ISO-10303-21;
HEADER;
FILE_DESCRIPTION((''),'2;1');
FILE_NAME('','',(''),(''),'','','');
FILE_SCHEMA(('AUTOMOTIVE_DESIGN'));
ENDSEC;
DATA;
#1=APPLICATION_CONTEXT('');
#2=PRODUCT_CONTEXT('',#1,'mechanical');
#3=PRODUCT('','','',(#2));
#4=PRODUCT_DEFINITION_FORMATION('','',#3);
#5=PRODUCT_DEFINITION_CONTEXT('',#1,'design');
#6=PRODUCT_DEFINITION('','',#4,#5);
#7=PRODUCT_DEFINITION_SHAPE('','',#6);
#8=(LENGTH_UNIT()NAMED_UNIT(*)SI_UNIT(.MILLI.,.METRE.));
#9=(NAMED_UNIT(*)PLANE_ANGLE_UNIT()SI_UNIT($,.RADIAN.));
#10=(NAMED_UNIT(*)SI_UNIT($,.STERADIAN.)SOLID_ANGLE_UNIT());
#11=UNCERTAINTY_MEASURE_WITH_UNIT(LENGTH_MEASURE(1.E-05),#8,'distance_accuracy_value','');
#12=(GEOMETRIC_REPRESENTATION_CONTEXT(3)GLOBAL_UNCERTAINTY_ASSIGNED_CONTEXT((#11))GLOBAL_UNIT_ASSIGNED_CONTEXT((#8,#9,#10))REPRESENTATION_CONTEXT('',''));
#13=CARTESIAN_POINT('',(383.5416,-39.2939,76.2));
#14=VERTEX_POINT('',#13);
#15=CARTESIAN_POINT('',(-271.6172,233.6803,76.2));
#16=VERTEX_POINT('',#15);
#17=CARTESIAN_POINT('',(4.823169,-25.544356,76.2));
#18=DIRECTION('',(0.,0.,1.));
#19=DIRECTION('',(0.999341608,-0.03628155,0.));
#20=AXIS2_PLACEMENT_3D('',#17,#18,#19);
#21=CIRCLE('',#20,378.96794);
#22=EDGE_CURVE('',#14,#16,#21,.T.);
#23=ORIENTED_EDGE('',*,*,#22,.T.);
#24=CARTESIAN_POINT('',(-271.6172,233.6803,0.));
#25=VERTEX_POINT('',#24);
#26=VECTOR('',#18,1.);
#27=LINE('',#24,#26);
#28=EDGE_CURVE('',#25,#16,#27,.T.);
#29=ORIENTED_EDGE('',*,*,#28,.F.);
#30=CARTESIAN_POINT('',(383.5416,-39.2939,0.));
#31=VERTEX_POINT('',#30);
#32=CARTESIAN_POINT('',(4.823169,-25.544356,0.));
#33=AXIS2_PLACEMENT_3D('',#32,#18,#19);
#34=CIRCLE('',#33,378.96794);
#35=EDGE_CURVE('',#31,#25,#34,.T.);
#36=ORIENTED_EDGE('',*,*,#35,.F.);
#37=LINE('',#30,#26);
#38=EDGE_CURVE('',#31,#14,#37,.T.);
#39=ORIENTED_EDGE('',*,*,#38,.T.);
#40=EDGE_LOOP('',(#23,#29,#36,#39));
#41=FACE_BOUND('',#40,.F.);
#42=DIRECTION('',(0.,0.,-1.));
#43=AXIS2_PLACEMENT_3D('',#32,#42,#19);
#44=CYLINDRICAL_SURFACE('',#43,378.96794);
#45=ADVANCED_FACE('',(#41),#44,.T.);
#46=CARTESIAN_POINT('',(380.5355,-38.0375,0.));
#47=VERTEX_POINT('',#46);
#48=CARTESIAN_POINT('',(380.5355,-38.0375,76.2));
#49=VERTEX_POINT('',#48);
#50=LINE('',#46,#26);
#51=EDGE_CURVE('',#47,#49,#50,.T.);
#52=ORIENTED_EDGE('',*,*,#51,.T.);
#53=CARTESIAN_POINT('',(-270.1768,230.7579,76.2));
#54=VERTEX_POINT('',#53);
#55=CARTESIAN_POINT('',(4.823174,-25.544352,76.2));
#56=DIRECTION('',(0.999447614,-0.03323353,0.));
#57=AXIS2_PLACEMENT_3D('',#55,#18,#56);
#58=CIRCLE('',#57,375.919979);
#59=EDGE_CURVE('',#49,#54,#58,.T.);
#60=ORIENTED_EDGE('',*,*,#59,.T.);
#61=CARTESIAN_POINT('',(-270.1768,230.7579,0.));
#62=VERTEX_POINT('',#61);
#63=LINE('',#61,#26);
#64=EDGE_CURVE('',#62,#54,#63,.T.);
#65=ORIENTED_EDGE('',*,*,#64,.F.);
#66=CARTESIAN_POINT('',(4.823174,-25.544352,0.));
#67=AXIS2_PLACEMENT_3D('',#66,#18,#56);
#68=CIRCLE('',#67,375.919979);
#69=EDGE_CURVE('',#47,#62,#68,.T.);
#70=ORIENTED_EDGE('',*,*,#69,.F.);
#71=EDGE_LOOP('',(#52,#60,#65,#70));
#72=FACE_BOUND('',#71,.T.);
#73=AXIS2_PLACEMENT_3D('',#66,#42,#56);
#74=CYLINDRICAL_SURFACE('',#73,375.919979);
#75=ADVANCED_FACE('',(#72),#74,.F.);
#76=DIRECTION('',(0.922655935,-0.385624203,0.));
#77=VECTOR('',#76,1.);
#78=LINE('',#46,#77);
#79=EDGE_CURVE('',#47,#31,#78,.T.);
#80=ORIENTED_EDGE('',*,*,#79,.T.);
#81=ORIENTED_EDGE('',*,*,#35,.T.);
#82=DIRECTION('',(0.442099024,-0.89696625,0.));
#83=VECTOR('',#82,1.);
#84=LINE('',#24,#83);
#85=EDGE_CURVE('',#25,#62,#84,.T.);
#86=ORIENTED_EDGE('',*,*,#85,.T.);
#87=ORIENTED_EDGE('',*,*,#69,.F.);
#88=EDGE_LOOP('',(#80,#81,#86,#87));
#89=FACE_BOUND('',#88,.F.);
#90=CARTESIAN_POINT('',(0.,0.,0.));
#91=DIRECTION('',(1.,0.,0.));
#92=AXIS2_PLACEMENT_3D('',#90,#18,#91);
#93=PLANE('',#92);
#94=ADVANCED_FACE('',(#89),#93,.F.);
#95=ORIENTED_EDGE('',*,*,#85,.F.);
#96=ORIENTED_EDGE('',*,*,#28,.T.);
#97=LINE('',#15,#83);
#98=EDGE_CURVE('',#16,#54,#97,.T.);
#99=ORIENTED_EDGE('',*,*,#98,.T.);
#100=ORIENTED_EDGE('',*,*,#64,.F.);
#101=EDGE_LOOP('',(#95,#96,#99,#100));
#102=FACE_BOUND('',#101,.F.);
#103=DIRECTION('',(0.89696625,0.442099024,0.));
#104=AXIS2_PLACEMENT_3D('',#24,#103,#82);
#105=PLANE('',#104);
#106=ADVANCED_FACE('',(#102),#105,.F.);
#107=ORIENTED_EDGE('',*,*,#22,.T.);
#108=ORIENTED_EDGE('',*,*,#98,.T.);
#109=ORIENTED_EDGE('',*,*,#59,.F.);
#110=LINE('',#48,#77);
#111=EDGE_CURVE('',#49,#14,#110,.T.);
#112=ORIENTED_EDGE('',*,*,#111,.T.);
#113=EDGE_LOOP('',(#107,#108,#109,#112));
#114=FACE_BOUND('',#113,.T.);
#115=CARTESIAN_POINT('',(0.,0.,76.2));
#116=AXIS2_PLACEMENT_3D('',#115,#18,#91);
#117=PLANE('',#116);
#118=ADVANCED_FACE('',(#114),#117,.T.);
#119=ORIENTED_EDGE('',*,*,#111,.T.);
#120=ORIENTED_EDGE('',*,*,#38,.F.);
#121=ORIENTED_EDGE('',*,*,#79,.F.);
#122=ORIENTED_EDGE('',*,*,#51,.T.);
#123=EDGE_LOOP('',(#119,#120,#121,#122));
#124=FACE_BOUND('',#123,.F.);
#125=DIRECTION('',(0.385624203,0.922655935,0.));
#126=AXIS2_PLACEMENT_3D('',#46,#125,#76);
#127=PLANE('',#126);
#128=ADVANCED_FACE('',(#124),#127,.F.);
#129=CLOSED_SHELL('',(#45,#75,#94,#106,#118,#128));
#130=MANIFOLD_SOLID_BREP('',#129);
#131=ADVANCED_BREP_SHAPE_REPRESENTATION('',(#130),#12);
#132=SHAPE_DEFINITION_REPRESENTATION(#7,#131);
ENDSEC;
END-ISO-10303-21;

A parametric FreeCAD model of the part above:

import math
import FreeCAD as App
import Part
import Sketcher

V = App.Vector
Q = App.Units.Quantity

doc = App.newDocument("Part")
body = doc.addObject("PartDesign::Body", "Body")

# Sketch on XY plane
sketch1 = body.newObject("Sketcher::SketchObject", "Sketch")
sketch1.AttachmentSupport = (doc.getObject("XY_Plane"), [""])
sketch1.MapMode = "FlatFace"
sketch1.addGeometry([
    Part.ArcOfCircle(Part.Circle(V(4.8, -25.5, 0), V(0, 0, 1), 375.9), math.radians(-2), math.radians(137)),
    Part.LineSegment(V(380.5, -38, 0), V(383.5, -39.3, 0)),
    Part.ArcOfCircle(Part.Circle(V(4.8, -25.5, 0), V(0, 0, 1), 379), math.radians(-2), math.radians(137)),
    Part.LineSegment(V(-271.6, 233.7, 0), V(-270.2, 230.8, 0)),
], False)
sketch1.addConstraint([
    Sketcher.Constraint("Coincident", 0, 1, 1, 1),
    Sketcher.Constraint("Coincident", 1, 2, 2, 1),
    Sketcher.Constraint("Coincident", 2, 2, 3, 1),
    Sketcher.Constraint("Coincident", 3, 2, 0, 2),
    Sketcher.Constraint("Coincident", 2, 3, 0, 3),
    Sketcher.Constraint("Equal", 1, 3),
    Sketcher.Constraint("Radius", 0, Q("14.8 in")),
    Sketcher.Constraint("Radius", 2, Q("14.92 in")),
    Sketcher.Constraint("DistanceY", 1, 2, -1, 1, Q("1.547 in")),
    Sketcher.Constraint("DistanceX", 2, 2, -1, 1, Q("10.6936 in")),
    Sketcher.Constraint("DistanceX", 3, 2, 0, 1, Q("25.6186 in")),
    Sketcher.Constraint("DistanceY", 0, 1, 3, 2, Q("10.5825 in")),
    Sketcher.Constraint("Distance", 1, Q("3.258 mm")),
])
pad1 = body.newObject("PartDesign::Pad", "Pad")
pad1.Profile = sketch1
pad1.Length = Q("3 in")

doc.recompute()
